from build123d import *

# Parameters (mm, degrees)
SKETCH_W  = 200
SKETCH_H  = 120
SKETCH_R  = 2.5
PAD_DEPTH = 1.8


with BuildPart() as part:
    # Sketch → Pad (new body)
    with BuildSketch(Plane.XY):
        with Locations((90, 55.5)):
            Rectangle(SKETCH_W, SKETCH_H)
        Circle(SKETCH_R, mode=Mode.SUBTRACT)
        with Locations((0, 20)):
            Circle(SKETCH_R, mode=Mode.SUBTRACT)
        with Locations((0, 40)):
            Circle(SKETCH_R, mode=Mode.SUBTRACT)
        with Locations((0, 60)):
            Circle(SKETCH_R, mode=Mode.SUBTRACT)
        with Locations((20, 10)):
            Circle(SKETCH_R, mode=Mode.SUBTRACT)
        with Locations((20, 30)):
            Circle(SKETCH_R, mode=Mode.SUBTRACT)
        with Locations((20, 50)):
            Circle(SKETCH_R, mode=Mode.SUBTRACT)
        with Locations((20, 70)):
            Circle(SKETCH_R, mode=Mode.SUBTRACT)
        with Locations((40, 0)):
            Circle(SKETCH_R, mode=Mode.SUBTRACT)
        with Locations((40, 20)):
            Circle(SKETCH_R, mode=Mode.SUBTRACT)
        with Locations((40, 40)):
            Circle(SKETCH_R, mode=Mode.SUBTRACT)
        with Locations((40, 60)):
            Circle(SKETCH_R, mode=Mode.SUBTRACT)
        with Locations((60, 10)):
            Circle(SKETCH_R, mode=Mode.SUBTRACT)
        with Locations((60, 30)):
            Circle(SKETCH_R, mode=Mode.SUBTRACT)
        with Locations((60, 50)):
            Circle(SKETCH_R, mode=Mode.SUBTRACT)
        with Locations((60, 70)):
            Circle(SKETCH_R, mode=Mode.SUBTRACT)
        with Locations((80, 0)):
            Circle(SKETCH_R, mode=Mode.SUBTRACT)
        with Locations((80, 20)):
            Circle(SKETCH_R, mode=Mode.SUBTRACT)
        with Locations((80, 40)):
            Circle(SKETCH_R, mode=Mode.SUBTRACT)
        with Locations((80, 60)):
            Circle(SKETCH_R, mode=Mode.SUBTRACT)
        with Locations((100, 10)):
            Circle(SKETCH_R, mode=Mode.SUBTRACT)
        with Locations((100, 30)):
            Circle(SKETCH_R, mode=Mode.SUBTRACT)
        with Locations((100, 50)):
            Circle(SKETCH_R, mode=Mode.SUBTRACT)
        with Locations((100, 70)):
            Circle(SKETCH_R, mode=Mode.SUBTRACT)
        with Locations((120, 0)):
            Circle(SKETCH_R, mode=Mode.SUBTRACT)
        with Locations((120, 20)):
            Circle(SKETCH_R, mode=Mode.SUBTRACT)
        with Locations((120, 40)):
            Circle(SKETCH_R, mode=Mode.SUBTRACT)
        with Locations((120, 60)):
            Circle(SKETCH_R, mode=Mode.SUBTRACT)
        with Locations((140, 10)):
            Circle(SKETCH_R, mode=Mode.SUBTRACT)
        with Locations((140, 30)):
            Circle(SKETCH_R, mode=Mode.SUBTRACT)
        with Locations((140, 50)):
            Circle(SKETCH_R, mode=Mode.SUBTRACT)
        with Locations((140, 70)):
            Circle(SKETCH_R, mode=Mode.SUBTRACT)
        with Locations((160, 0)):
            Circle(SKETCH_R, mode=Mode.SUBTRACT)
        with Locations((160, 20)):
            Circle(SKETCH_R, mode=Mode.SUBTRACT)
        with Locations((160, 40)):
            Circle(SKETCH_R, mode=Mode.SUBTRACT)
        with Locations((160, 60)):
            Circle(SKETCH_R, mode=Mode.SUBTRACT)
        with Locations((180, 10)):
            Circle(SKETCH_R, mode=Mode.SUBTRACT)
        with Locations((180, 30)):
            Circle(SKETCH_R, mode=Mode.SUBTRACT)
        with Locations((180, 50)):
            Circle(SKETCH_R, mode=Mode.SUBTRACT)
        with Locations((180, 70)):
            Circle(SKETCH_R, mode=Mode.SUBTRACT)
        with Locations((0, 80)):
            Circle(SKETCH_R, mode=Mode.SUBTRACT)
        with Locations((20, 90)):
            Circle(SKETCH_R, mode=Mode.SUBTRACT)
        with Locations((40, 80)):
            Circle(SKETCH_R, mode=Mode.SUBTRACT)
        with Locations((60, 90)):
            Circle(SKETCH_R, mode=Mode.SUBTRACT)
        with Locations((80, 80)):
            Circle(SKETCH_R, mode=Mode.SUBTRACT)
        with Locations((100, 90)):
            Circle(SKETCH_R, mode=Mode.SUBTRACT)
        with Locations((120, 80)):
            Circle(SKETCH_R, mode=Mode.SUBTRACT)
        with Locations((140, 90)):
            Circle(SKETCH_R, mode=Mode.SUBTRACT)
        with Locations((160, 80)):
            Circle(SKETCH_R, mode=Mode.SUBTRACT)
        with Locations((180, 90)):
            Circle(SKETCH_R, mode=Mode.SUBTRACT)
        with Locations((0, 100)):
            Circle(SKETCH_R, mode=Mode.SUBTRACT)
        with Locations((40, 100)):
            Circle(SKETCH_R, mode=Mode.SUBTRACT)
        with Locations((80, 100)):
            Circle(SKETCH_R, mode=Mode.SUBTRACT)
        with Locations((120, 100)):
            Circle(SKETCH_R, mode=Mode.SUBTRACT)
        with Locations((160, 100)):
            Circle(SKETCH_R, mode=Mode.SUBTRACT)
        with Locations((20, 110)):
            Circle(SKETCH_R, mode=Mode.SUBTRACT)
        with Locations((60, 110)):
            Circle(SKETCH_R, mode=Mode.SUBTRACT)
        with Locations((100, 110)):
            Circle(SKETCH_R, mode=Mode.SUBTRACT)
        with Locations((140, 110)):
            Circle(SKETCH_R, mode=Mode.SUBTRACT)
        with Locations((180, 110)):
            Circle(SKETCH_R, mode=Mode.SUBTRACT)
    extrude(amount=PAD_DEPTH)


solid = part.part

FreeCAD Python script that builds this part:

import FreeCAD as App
import Part
import Sketcher
from FreeCAD import Vector
Q = App.Units.Quantity


def add_polygon(sketch, points):
    """Adds a closed chain of lines whose ends are joined by coincident constraints."""
    first, n = sketch.GeometryCount, len(points)
    for a, b in zip(points, points[1:] + points[:1]):
        sketch.addGeometry(Part.LineSegment(App.Vector(*a, 0), App.Vector(*b, 0)), False)
    for i in range(n):
        sketch.addConstraint(Sketcher.Constraint("Coincident", first + i, 2, first + (i + 1) % n, 1))

doc = App.newDocument("Part")
body = doc.addObject("PartDesign::Body", "Body")

sketch1 = body.newObject("Sketcher::SketchObject", "Sketch")
sketch1.AttachmentSupport = (doc.getObject("XY_Plane"), [""])
sketch1.MapMode = "FlatFace"
add_polygon(sketch1, [(-10, 115.5), (-10, -4.5), (190, -4.5), (190, 115.5)])
sketch1.addGeometry(Part.Circle(Vector(0, 0, 0), Vector(0, 0, 1), 2.5), False)
sketch1.addGeometry(Part.Circle(Vector(20, 10, 0), Vector(0, 0, 1), 2.5), False)
sketch1.addGeometry(Part.Circle(Vector(40, 0, 0), Vector(0, 0, 1), 2.5), False)
sketch1.addGeometry(Part.Circle(Vector(0, 20, 0), Vector(0, 0, 1), 2.5), False)
sketch1.addGeometry(Part.Circle(Vector(40, 20, 0), Vector(0, 0, 1), 2.5), False)
sketch1.addGeometry(Part.Circle(Vector(60, 10, 0), Vector(0, 0, 1), 2.5), False)
sketch1.addGeometry(Part.Circle(Vector(80, 0, 0), Vector(0, 0, 1), 2.5), False)
sketch1.addGeometry(Part.Circle(Vector(80, 20, 0), Vector(0, 0, 1), 2.5), False)
sketch1.addGeometry(Part.Circle(Vector(20, 30, 0), Vector(0, 0, 1), 2.5), False)
sketch1.addGeometry(Part.Circle(Vector(0, 40, 0), Vector(0, 0, 1), 2.5), False)
sketch1.addGeometry(Part.Circle(Vector(40, 40, 0), Vector(0, 0, 1), 2.5), False)
sketch1.addGeometry(Part.Circle(Vector(20, 50, 0), Vector(0, 0, 1), 2.5), False)
sketch1.addGeometry(Part.Circle(Vector(60, 30, 0), Vector(0, 0, 1), 2.5), False)
sketch1.addGeometry(Part.Circle(Vector(80, 40, 0), Vector(0, 0, 1), 2.5), False)
sketch1.addGeometry(Part.Circle(Vector(60, 50, 0), Vector(0, 0, 1), 2.5), False)
sketch1.addGeometry(Part.Circle(Vector(100, 10, 0), Vector(0, 0, 1), 2.5), False)
sketch1.addGeometry(Part.Circle(Vector(120, 0, 0), Vector(0, 0, 1), 2.5), False)
sketch1.addGeometry(Part.Circle(Vector(120, 20, 0), Vector(0, 0, 1), 2.5), False)
sketch1.addGeometry(Part.Circle(Vector(140, 10, 0), Vector(0, 0, 1), 2.5), False)
sketch1.addGeometry(Part.Circle(Vector(160, 0, 0), Vector(0, 0, 1), 2.5), False)
sketch1.addGeometry(Part.Circle(Vector(180, 10, 0), Vector(0, 0, 1), 2.5), False)
sketch1.addGeometry(Part.Circle(Vector(160, 20, 0), Vector(0, 0, 1), 2.5), False)
sketch1.addGeometry(Part.Circle(Vector(100, 30, 0), Vector(0, 0, 1), 2.5), False)
sketch1.addGeometry(Part.Circle(Vector(120, 40, 0), Vector(0, 0, 1), 2.5), False)
sketch1.addGeometry(Part.Circle(Vector(100, 50, 0), Vector(0, 0, 1), 2.5), False)
sketch1.addGeometry(Part.Circle(Vector(140, 30, 0), Vector(0, 0, 1), 2.5), False)
sketch1.addGeometry(Part.Circle(Vector(180, 30, 0), Vector(0, 0, 1), 2.5), False)
sketch1.addGeometry(Part.Circle(Vector(160, 40, 0), Vector(0, 0, 1), 2.5), False)
sketch1.addGeometry(Part.Circle(Vector(140, 50, 0), Vector(0, 0, 1), 2.5), False)
sketch1.addGeometry(Part.Circle(Vector(180, 50, 0), Vector(0, 0, 1), 2.5), False)
sketch1.addGeometry(Part.Circle(Vector(0, 60, 0), Vector(0, 0, 1), 2.5), False)
sketch1.addGeometry(Part.Circle(Vector(40, 60, 0), Vector(0, 0, 1), 2.5), False)
sketch1.addGeometry(Part.Circle(Vector(20, 70, 0), Vector(0, 0, 1), 2.5), False)
sketch1.addGeometry(Part.Circle(Vector(0, 80, 0), Vector(0, 0, 1), 2.5), False)
sketch1.addGeometry(Part.Circle(Vector(40, 80, 0), Vector(0, 0, 1), 2.5), False)
sketch1.addGeometry(Part.Circle(Vector(80, 60, 0), Vector(0, 0, 1), 2.5), False)
sketch1.addGeometry(Part.Circle(Vector(60, 70, 0), Vector(0, 0, 1), 2.5), False)
sketch1.addGeometry(Part.Circle(Vector(80, 80, 0), Vector(0, 0, 1), 2.5), False)
sketch1.addGeometry(Part.Circle(Vector(20, 90, 0), Vector(0, 0, 1), 2.5), False)
sketch1.addGeometry(Part.Circle(Vector(0, 100, 0), Vector(0, 0, 1), 2.5), False)
sketch1.addGeometry(Part.Circle(Vector(20, 110, 0), Vector(0, 0, 1), 2.5), False)
sketch1.addGeometry(Part.Circle(Vector(40, 100, 0), Vector(0, 0, 1), 2.5), False)
sketch1.addGeometry(Part.Circle(Vector(60, 90, 0), Vector(0, 0, 1), 2.5), False)
sketch1.addGeometry(Part.Circle(Vector(60, 110, 0), Vector(0, 0, 1), 2.5), False)
sketch1.addGeometry(Part.Circle(Vector(80, 100, 0), Vector(0, 0, 1), 2.5), False)
sketch1.addGeometry(Part.Circle(Vector(120, 60, 0), Vector(0, 0, 1), 2.5), False)
sketch1.addGeometry(Part.Circle(Vector(100, 70, 0), Vector(0, 0, 1), 2.5), False)
sketch1.addGeometry(Part.Circle(Vector(120, 80, 0), Vector(0, 0, 1), 2.5), False)
sketch1.addGeometry(Part.Circle(Vector(160, 60, 0), Vector(0, 0, 1), 2.5), False)
sketch1.addGeometry(Part.Circle(Vector(140, 70, 0), Vector(0, 0, 1), 2.5), False)
sketch1.addGeometry(Part.Circle(Vector(180, 70, 0), Vector(0, 0, 1), 2.5), False)
sketch1.addGeometry(Part.Circle(Vector(160, 80, 0), Vector(0, 0, 1), 2.5), False)
sketch1.addGeometry(Part.Circle(Vector(100, 90, 0), Vector(0, 0, 1), 2.5), False)
sketch1.addGeometry(Part.Circle(Vector(100, 110, 0), Vector(0, 0, 1), 2.5), False)
sketch1.addGeometry(Part.Circle(Vector(120, 100, 0), Vector(0, 0, 1), 2.5), False)
sketch1.addGeometry(Part.Circle(Vector(140, 90, 0), Vector(0, 0, 1), 2.5), False)
sketch1.addGeometry(Part.Circle(Vector(180, 90, 0), Vector(0, 0, 1), 2.5), False)
sketch1.addGeometry(Part.Circle(Vector(140, 110, 0), Vector(0, 0, 1), 2.5), False)
sketch1.addGeometry(Part.Circle(Vector(160, 100, 0), Vector(0, 0, 1), 2.5), False)
sketch1.addGeometry(Part.Circle(Vector(180, 110, 0), Vector(0, 0, 1), 2.5), False)
sketch1.addConstraint([
    Sketcher.Constraint("Vertical", 0),
    Sketcher.Constraint("Horizontal", 1),
    Sketcher.Constraint("Vertical", 2),
    Sketcher.Constraint("Horizontal", 3),
    Sketcher.Constraint("Coincident", 4, 3, -1, 1),
    Sketcher.Constraint("Equal", 4, 5),
    Sketcher.Constraint("Equal", 5, 6),
    Sketcher.Constraint("Equal", 6, 7),
    Sketcher.Constraint("Equal", 7, 8),
    Sketcher.Constraint("Equal", 8, 9),
    Sketcher.Constraint("Equal", 9, 10),
    Sketcher.Constraint("Equal", 10, 11),
    Sketcher.Constraint("Equal", 11, 12),
    Sketcher.Constraint("Equal", 12, 13),
    Sketcher.Constraint("Equal", 13, 14),
    Sketcher.Constraint("Equal", 14, 15),
    Sketcher.Constraint("Equal", 15, 16),
    Sketcher.Constraint("Equal", 16, 17),
    Sketcher.Constraint("Equal", 17, 18),
    Sketcher.Constraint("Equal", 18, 19),
    Sketcher.Constraint("Equal", 19, 20),
    Sketcher.Constraint("Equal", 20, 21),
    Sketcher.Constraint("Equal", 21, 22),
    Sketcher.Constraint("Equal", 22, 23),
    Sketcher.Constraint("Equal", 23, 24),
    Sketcher.Constraint("Equal", 24, 25),
    Sketcher.Constraint("Equal", 25, 26),
    Sketcher.Constraint("Equal", 26, 27),
    Sketcher.Constraint("Equal", 27, 28),
    Sketcher.Constraint("Equal", 28, 29),
    Sketcher.Constraint("Equal", 29, 30),
    Sketcher.Constraint("Equal", 30, 31),
    Sketcher.Constraint("Equal", 31, 32),
    Sketcher.Constraint("Equal", 32, 33),
    Sketcher.Constraint("Equal", 33, 34),
    Sketcher.Constraint("Equal", 34, 35),
    Sketcher.Constraint("Equal", 35, 36),
    Sketcher.Constraint("Equal", 36, 37),
    Sketcher.Constraint("Equal", 37, 38),
    Sketcher.Constraint("Equal", 38, 39),
    Sketcher.Constraint("Equal", 39, 40),
    Sketcher.Constraint("Equal", 40, 41),
    Sketcher.Constraint("Equal", 41, 42),
    Sketcher.Constraint("Equal", 42, 43),
    Sketcher.Constraint("Equal", 43, 44),
    Sketcher.Constraint("Equal", 44, 45),
    Sketcher.Constraint("Equal", 45, 46),
    Sketcher.Constraint("Equal", 46, 47),
    Sketcher.Constraint("Equal", 47, 48),
    Sketcher.Constraint("Equal", 48, 49),
    Sketcher.Constraint("Equal", 49, 50),
    Sketcher.Constraint("Equal", 50, 51),
    Sketcher.Constraint("Equal", 51, 52),
    Sketcher.Constraint("Equal", 52, 53),
    Sketcher.Constraint("Equal", 53, 54),
    Sketcher.Constraint("Equal", 54, 55),
    Sketcher.Constraint("Equal", 55, 56),
    Sketcher.Constraint("Equal", 56, 57),
    Sketcher.Constraint("Equal", 57, 58),
    Sketcher.Constraint("Equal", 58, 59),
    Sketcher.Constraint("Equal", 59, 60),
    Sketcher.Constraint("Equal", 60, 61),
    Sketcher.Constraint("Equal", 61, 62),
    Sketcher.Constraint("Equal", 62, 63),
    Sketcher.Constraint("PointOnObject", 6, 3, -1),
    Sketcher.Constraint("PointOnObject", 7, 3, -2),
    Sketcher.Constraint("PointOnObject", 10, 3, -1),
    Sketcher.Constraint("PointOnObject", 13, 3, -2),
    Sketcher.Constraint("PointOnObject", 20, 3, -1),
    Sketcher.Constraint("PointOnObject", 23, 3, -1),
    Sketcher.Constraint("PointOnObject", 34, 3, -2),
    Sketcher.Constraint("PointOnObject", 37, 3, -2),
    Sketcher.Constraint("PointOnObject", 43, 3, -2),
    Sketcher.Constraint("Horizontal", 7, 3, 8, 3),
    Sketcher.Constraint("Horizontal", 5, 3, 9, 3),
    Sketcher.Constraint("Horizontal", 8, 3, 11, 3),
    Sketcher.Constraint("Horizontal", 13, 3, 14, 3),
    Sketcher.Constraint("Horizontal", 12, 3, 16, 3),
    Sketcher.Constraint("Horizontal", 14, 3, 17, 3),
    Sketcher.Constraint("Horizontal", 15, 3, 18, 3),
    Sketcher.Constraint("Horizontal", 9, 3, 19, 3),
    Sketcher.Constraint("Horizontal", 11, 3, 21, 3),
    Sketcher.Constraint("Horizontal", 19, 3, 22, 3),
    Sketcher.Constraint("Horizontal", 22, 3, 24, 3),
    Sketcher.Constraint("Horizontal", 21, 3, 25, 3),
    Sketcher.Constraint("Horizontal", 16, 3, 26, 3),
    Sketcher.Constraint("Horizontal", 17, 3, 27, 3),
    Sketcher.Constraint("Horizontal", 18, 3, 28, 3),
    Sketcher.Constraint("Horizontal", 26, 3, 29, 3),
    Sketcher.Constraint("Horizontal", 29, 3, 30, 3),
    Sketcher.Constraint("Horizontal", 27, 3, 31, 3),
    Sketcher.Constraint("Horizontal", 28, 3, 32, 3),
    Sketcher.Constraint("Horizontal", 32, 3, 33, 3),
    Sketcher.Constraint("Horizontal", 34, 3, 35, 3),
    Sketcher.Constraint("Horizontal", 37, 3, 38, 3),
    Sketcher.Constraint("Horizontal", 35, 3, 39, 3),
    Sketcher.Constraint("Horizontal", 36, 3, 40, 3),
    Sketcher.Constraint("Horizontal", 38, 3, 41, 3),
    Sketcher.Constraint("Horizontal", 43, 3, 45, 3),
    Sketcher.Constraint("Horizontal", 42, 3, 46, 3),
    Sketcher.Constraint("Horizontal", 44, 3, 47, 3),
    Sketcher.Constraint("Horizontal", 45, 3, 48, 3),
    Sketcher.Constraint("Horizontal", 39, 3, 49, 3),
    Sketcher.Constraint("Horizontal", 40, 3, 50, 3),
    Sketcher.Constraint("Horizontal", 41, 3, 51, 3),
    Sketcher.Constraint("Horizontal", 49, 3, 52, 3),
    Sketcher.Constraint("Horizontal", 50, 3, 53, 3),
    Sketcher.Constraint("Horizontal", 53, 3, 54, 3),
    Sketcher.Constraint("Horizontal", 51, 3, 55, 3),
    Sketcher.Constraint("Horizontal", 46, 3, 56, 3),
    Sketcher.Constraint("Horizontal", 47, 3, 57, 3),
    Sketcher.Constraint("Horizontal", 48, 3, 58, 3),
    Sketcher.Constraint("Horizontal", 56, 3, 59, 3),
    Sketcher.Constraint("Horizontal", 59, 3, 60, 3),
    Sketcher.Constraint("Horizontal", 57, 3, 61, 3),
    Sketcher.Constraint("Horizontal", 58, 3, 62, 3),
    Sketcher.Constraint("Horizontal", 61, 3, 63, 3),
    Sketcher.Constraint("Vertical", 6, 3, 8, 3),
    Sketcher.Constraint("Vertical", 10, 3, 11, 3),
    Sketcher.Constraint("Vertical", 5, 3, 12, 3),
    Sketcher.Constraint("Vertical", 8, 3, 14, 3),
    Sketcher.Constraint("Vertical", 12, 3, 15, 3),
    Sketcher.Constraint("Vertical", 9, 3, 16, 3),
    Sketcher.Constraint("Vertical", 11, 3, 17, 3),
    Sketcher.Constraint("Vertical", 16, 3, 18, 3),
    Sketcher.Constraint("Vertical", 20, 3, 21, 3),
    Sketcher.Constraint("Vertical", 23, 3, 25, 3),
    Sketcher.Constraint("Vertical", 19, 3, 26, 3),
    Sketcher.Constraint("Vertical", 21, 3, 27, 3),
    Sketcher.Constraint("Vertical", 26, 3, 28, 3),
    Sketcher.Constraint("Vertical", 22, 3, 29, 3),
    Sketcher.Constraint("Vertical", 24, 3, 30, 3),
    Sketcher.Constraint("Vertical", 25, 3, 31, 3),
    Sketcher.Constraint("Vertical", 29, 3, 32, 3),
    Sketcher.Constraint("Vertical", 30, 3, 33, 3),
    Sketcher.Constraint("Vertical", 14, 3, 35, 3),
    Sketcher.Constraint("Vertical", 15, 3, 36, 3),
    Sketcher.Constraint("Vertical", 35, 3, 38, 3),
    Sketcher.Constraint("Vertical", 17, 3, 39, 3),
    Sketcher.Constraint("Vertical", 18, 3, 40, 3),
    Sketcher.Constraint("Vertical", 39, 3, 41, 3),
    Sketcher.Constraint("Vertical", 36, 3, 42, 3),
    Sketcher.Constraint("Vertical", 42, 3, 44, 3),
    Sketcher.Constraint("Vertical", 38, 3, 45, 3),
    Sketcher.Constraint("Vertical", 40, 3, 46, 3),
    Sketcher.Constraint("Vertical", 46, 3, 47, 3),
    Sketcher.Constraint("Vertical", 41, 3, 48, 3),
    Sketcher.Constraint("Vertical", 27, 3, 49, 3),
    Sketcher.Constraint("Vertical", 28, 3, 50, 3),
    Sketcher.Constraint("Vertical", 49, 3, 51, 3),
    Sketcher.Constraint("Vertical", 31, 3, 52, 3),
    Sketcher.Constraint("Vertical", 32, 3, 53, 3),
    Sketcher.Constraint("Vertical", 33, 3, 54, 3),
    Sketcher.Constraint("Vertical", 52, 3, 55, 3),
    Sketcher.Constraint("Vertical", 50, 3, 56, 3),
    Sketcher.Constraint("Vertical", 56, 3, 57, 3),
    Sketcher.Constraint("Vertical", 51, 3, 58, 3),
    Sketcher.Constraint("Vertical", 53, 3, 59, 3),
    Sketcher.Constraint("Vertical", 54, 3, 60, 3),
    Sketcher.Constraint("Vertical", 59, 3, 61, 3),
    Sketcher.Constraint("Vertical", 55, 3, 62, 3),
    Sketcher.Constraint("Vertical", 60, 3, 63, 3),
    Sketcher.Constraint("Diameter", 4, Q("5 mm")),
    Sketcher.Constraint("DistanceX", 1, 1, 1, 2, Q("200 mm")),
    Sketcher.Constraint("DistanceY", 0, 2, 0, 1, Q("120 mm")),
    Sketcher.Constraint("DistanceX", -1, 1, 5, 3, Q("20 mm")),
    Sketcher.Constraint("DistanceY", -1, 1, 5, 3, Q("10 mm")),
    Sketcher.Constraint("DistanceX", -1, 1, 6, 3, Q("40 mm")),
    Sketcher.Constraint("DistanceY", -1, 1, 7, 3, Q("20 mm")),
    Sketcher.Constraint("DistanceX", -1, 1, 9, 3, Q("60 mm")),
    Sketcher.Constraint("DistanceX", -1, 1, 10, 3, Q("80 mm")),
    Sketcher.Constraint("DistanceY", -1, 1, 12, 3, Q("30 mm")),
    Sketcher.Constraint("DistanceY", -1, 1, 13, 3, Q("40 mm")),
    Sketcher.Constraint("DistanceY", -1, 1, 15, 3, Q("50 mm")),
    Sketcher.Constraint("DistanceX", -1, 1, 19, 3, Q("100 mm")),
    Sketcher.Constraint("DistanceX", -1, 1, 20, 3, Q("120 mm")),
    Sketcher.Constraint("DistanceX", -1, 1, 22, 3, Q("140 mm")),
    Sketcher.Constraint("DistanceX", -1, 1, 23, 3, Q("160 mm")),
    Sketcher.Constraint("DistanceX", -1, 1, 24, 3, Q("180 mm")),
    Sketcher.Constraint("DistanceY", -1, 1, 34, 3, Q("60 mm")),
    Sketcher.Constraint("DistanceY", -1, 1, 36, 3, Q("70 mm")),
    Sketcher.Constraint("DistanceY", -1, 1, 37, 3, Q("80 mm")),
    Sketcher.Constraint("DistanceY", -1, 1, 42, 3, Q("90 mm")),
    Sketcher.Constraint("DistanceY", -1, 1, 43, 3, Q("100 mm")),
    Sketcher.Constraint("DistanceY", -1, 1, 44, 3, Q("110 mm")),
    Sketcher.Constraint("DistanceX", 0, 2, -1, 1, Q("10 mm")),
    Sketcher.Constraint("DistanceY", 0, 2, -1, 1, Q("4.5 mm")),
])
pad1 = body.newObject("PartDesign::Pad", "Pad")
pad1.Profile = sketch1
pad1.Length = 1.8

doc.recompute()
